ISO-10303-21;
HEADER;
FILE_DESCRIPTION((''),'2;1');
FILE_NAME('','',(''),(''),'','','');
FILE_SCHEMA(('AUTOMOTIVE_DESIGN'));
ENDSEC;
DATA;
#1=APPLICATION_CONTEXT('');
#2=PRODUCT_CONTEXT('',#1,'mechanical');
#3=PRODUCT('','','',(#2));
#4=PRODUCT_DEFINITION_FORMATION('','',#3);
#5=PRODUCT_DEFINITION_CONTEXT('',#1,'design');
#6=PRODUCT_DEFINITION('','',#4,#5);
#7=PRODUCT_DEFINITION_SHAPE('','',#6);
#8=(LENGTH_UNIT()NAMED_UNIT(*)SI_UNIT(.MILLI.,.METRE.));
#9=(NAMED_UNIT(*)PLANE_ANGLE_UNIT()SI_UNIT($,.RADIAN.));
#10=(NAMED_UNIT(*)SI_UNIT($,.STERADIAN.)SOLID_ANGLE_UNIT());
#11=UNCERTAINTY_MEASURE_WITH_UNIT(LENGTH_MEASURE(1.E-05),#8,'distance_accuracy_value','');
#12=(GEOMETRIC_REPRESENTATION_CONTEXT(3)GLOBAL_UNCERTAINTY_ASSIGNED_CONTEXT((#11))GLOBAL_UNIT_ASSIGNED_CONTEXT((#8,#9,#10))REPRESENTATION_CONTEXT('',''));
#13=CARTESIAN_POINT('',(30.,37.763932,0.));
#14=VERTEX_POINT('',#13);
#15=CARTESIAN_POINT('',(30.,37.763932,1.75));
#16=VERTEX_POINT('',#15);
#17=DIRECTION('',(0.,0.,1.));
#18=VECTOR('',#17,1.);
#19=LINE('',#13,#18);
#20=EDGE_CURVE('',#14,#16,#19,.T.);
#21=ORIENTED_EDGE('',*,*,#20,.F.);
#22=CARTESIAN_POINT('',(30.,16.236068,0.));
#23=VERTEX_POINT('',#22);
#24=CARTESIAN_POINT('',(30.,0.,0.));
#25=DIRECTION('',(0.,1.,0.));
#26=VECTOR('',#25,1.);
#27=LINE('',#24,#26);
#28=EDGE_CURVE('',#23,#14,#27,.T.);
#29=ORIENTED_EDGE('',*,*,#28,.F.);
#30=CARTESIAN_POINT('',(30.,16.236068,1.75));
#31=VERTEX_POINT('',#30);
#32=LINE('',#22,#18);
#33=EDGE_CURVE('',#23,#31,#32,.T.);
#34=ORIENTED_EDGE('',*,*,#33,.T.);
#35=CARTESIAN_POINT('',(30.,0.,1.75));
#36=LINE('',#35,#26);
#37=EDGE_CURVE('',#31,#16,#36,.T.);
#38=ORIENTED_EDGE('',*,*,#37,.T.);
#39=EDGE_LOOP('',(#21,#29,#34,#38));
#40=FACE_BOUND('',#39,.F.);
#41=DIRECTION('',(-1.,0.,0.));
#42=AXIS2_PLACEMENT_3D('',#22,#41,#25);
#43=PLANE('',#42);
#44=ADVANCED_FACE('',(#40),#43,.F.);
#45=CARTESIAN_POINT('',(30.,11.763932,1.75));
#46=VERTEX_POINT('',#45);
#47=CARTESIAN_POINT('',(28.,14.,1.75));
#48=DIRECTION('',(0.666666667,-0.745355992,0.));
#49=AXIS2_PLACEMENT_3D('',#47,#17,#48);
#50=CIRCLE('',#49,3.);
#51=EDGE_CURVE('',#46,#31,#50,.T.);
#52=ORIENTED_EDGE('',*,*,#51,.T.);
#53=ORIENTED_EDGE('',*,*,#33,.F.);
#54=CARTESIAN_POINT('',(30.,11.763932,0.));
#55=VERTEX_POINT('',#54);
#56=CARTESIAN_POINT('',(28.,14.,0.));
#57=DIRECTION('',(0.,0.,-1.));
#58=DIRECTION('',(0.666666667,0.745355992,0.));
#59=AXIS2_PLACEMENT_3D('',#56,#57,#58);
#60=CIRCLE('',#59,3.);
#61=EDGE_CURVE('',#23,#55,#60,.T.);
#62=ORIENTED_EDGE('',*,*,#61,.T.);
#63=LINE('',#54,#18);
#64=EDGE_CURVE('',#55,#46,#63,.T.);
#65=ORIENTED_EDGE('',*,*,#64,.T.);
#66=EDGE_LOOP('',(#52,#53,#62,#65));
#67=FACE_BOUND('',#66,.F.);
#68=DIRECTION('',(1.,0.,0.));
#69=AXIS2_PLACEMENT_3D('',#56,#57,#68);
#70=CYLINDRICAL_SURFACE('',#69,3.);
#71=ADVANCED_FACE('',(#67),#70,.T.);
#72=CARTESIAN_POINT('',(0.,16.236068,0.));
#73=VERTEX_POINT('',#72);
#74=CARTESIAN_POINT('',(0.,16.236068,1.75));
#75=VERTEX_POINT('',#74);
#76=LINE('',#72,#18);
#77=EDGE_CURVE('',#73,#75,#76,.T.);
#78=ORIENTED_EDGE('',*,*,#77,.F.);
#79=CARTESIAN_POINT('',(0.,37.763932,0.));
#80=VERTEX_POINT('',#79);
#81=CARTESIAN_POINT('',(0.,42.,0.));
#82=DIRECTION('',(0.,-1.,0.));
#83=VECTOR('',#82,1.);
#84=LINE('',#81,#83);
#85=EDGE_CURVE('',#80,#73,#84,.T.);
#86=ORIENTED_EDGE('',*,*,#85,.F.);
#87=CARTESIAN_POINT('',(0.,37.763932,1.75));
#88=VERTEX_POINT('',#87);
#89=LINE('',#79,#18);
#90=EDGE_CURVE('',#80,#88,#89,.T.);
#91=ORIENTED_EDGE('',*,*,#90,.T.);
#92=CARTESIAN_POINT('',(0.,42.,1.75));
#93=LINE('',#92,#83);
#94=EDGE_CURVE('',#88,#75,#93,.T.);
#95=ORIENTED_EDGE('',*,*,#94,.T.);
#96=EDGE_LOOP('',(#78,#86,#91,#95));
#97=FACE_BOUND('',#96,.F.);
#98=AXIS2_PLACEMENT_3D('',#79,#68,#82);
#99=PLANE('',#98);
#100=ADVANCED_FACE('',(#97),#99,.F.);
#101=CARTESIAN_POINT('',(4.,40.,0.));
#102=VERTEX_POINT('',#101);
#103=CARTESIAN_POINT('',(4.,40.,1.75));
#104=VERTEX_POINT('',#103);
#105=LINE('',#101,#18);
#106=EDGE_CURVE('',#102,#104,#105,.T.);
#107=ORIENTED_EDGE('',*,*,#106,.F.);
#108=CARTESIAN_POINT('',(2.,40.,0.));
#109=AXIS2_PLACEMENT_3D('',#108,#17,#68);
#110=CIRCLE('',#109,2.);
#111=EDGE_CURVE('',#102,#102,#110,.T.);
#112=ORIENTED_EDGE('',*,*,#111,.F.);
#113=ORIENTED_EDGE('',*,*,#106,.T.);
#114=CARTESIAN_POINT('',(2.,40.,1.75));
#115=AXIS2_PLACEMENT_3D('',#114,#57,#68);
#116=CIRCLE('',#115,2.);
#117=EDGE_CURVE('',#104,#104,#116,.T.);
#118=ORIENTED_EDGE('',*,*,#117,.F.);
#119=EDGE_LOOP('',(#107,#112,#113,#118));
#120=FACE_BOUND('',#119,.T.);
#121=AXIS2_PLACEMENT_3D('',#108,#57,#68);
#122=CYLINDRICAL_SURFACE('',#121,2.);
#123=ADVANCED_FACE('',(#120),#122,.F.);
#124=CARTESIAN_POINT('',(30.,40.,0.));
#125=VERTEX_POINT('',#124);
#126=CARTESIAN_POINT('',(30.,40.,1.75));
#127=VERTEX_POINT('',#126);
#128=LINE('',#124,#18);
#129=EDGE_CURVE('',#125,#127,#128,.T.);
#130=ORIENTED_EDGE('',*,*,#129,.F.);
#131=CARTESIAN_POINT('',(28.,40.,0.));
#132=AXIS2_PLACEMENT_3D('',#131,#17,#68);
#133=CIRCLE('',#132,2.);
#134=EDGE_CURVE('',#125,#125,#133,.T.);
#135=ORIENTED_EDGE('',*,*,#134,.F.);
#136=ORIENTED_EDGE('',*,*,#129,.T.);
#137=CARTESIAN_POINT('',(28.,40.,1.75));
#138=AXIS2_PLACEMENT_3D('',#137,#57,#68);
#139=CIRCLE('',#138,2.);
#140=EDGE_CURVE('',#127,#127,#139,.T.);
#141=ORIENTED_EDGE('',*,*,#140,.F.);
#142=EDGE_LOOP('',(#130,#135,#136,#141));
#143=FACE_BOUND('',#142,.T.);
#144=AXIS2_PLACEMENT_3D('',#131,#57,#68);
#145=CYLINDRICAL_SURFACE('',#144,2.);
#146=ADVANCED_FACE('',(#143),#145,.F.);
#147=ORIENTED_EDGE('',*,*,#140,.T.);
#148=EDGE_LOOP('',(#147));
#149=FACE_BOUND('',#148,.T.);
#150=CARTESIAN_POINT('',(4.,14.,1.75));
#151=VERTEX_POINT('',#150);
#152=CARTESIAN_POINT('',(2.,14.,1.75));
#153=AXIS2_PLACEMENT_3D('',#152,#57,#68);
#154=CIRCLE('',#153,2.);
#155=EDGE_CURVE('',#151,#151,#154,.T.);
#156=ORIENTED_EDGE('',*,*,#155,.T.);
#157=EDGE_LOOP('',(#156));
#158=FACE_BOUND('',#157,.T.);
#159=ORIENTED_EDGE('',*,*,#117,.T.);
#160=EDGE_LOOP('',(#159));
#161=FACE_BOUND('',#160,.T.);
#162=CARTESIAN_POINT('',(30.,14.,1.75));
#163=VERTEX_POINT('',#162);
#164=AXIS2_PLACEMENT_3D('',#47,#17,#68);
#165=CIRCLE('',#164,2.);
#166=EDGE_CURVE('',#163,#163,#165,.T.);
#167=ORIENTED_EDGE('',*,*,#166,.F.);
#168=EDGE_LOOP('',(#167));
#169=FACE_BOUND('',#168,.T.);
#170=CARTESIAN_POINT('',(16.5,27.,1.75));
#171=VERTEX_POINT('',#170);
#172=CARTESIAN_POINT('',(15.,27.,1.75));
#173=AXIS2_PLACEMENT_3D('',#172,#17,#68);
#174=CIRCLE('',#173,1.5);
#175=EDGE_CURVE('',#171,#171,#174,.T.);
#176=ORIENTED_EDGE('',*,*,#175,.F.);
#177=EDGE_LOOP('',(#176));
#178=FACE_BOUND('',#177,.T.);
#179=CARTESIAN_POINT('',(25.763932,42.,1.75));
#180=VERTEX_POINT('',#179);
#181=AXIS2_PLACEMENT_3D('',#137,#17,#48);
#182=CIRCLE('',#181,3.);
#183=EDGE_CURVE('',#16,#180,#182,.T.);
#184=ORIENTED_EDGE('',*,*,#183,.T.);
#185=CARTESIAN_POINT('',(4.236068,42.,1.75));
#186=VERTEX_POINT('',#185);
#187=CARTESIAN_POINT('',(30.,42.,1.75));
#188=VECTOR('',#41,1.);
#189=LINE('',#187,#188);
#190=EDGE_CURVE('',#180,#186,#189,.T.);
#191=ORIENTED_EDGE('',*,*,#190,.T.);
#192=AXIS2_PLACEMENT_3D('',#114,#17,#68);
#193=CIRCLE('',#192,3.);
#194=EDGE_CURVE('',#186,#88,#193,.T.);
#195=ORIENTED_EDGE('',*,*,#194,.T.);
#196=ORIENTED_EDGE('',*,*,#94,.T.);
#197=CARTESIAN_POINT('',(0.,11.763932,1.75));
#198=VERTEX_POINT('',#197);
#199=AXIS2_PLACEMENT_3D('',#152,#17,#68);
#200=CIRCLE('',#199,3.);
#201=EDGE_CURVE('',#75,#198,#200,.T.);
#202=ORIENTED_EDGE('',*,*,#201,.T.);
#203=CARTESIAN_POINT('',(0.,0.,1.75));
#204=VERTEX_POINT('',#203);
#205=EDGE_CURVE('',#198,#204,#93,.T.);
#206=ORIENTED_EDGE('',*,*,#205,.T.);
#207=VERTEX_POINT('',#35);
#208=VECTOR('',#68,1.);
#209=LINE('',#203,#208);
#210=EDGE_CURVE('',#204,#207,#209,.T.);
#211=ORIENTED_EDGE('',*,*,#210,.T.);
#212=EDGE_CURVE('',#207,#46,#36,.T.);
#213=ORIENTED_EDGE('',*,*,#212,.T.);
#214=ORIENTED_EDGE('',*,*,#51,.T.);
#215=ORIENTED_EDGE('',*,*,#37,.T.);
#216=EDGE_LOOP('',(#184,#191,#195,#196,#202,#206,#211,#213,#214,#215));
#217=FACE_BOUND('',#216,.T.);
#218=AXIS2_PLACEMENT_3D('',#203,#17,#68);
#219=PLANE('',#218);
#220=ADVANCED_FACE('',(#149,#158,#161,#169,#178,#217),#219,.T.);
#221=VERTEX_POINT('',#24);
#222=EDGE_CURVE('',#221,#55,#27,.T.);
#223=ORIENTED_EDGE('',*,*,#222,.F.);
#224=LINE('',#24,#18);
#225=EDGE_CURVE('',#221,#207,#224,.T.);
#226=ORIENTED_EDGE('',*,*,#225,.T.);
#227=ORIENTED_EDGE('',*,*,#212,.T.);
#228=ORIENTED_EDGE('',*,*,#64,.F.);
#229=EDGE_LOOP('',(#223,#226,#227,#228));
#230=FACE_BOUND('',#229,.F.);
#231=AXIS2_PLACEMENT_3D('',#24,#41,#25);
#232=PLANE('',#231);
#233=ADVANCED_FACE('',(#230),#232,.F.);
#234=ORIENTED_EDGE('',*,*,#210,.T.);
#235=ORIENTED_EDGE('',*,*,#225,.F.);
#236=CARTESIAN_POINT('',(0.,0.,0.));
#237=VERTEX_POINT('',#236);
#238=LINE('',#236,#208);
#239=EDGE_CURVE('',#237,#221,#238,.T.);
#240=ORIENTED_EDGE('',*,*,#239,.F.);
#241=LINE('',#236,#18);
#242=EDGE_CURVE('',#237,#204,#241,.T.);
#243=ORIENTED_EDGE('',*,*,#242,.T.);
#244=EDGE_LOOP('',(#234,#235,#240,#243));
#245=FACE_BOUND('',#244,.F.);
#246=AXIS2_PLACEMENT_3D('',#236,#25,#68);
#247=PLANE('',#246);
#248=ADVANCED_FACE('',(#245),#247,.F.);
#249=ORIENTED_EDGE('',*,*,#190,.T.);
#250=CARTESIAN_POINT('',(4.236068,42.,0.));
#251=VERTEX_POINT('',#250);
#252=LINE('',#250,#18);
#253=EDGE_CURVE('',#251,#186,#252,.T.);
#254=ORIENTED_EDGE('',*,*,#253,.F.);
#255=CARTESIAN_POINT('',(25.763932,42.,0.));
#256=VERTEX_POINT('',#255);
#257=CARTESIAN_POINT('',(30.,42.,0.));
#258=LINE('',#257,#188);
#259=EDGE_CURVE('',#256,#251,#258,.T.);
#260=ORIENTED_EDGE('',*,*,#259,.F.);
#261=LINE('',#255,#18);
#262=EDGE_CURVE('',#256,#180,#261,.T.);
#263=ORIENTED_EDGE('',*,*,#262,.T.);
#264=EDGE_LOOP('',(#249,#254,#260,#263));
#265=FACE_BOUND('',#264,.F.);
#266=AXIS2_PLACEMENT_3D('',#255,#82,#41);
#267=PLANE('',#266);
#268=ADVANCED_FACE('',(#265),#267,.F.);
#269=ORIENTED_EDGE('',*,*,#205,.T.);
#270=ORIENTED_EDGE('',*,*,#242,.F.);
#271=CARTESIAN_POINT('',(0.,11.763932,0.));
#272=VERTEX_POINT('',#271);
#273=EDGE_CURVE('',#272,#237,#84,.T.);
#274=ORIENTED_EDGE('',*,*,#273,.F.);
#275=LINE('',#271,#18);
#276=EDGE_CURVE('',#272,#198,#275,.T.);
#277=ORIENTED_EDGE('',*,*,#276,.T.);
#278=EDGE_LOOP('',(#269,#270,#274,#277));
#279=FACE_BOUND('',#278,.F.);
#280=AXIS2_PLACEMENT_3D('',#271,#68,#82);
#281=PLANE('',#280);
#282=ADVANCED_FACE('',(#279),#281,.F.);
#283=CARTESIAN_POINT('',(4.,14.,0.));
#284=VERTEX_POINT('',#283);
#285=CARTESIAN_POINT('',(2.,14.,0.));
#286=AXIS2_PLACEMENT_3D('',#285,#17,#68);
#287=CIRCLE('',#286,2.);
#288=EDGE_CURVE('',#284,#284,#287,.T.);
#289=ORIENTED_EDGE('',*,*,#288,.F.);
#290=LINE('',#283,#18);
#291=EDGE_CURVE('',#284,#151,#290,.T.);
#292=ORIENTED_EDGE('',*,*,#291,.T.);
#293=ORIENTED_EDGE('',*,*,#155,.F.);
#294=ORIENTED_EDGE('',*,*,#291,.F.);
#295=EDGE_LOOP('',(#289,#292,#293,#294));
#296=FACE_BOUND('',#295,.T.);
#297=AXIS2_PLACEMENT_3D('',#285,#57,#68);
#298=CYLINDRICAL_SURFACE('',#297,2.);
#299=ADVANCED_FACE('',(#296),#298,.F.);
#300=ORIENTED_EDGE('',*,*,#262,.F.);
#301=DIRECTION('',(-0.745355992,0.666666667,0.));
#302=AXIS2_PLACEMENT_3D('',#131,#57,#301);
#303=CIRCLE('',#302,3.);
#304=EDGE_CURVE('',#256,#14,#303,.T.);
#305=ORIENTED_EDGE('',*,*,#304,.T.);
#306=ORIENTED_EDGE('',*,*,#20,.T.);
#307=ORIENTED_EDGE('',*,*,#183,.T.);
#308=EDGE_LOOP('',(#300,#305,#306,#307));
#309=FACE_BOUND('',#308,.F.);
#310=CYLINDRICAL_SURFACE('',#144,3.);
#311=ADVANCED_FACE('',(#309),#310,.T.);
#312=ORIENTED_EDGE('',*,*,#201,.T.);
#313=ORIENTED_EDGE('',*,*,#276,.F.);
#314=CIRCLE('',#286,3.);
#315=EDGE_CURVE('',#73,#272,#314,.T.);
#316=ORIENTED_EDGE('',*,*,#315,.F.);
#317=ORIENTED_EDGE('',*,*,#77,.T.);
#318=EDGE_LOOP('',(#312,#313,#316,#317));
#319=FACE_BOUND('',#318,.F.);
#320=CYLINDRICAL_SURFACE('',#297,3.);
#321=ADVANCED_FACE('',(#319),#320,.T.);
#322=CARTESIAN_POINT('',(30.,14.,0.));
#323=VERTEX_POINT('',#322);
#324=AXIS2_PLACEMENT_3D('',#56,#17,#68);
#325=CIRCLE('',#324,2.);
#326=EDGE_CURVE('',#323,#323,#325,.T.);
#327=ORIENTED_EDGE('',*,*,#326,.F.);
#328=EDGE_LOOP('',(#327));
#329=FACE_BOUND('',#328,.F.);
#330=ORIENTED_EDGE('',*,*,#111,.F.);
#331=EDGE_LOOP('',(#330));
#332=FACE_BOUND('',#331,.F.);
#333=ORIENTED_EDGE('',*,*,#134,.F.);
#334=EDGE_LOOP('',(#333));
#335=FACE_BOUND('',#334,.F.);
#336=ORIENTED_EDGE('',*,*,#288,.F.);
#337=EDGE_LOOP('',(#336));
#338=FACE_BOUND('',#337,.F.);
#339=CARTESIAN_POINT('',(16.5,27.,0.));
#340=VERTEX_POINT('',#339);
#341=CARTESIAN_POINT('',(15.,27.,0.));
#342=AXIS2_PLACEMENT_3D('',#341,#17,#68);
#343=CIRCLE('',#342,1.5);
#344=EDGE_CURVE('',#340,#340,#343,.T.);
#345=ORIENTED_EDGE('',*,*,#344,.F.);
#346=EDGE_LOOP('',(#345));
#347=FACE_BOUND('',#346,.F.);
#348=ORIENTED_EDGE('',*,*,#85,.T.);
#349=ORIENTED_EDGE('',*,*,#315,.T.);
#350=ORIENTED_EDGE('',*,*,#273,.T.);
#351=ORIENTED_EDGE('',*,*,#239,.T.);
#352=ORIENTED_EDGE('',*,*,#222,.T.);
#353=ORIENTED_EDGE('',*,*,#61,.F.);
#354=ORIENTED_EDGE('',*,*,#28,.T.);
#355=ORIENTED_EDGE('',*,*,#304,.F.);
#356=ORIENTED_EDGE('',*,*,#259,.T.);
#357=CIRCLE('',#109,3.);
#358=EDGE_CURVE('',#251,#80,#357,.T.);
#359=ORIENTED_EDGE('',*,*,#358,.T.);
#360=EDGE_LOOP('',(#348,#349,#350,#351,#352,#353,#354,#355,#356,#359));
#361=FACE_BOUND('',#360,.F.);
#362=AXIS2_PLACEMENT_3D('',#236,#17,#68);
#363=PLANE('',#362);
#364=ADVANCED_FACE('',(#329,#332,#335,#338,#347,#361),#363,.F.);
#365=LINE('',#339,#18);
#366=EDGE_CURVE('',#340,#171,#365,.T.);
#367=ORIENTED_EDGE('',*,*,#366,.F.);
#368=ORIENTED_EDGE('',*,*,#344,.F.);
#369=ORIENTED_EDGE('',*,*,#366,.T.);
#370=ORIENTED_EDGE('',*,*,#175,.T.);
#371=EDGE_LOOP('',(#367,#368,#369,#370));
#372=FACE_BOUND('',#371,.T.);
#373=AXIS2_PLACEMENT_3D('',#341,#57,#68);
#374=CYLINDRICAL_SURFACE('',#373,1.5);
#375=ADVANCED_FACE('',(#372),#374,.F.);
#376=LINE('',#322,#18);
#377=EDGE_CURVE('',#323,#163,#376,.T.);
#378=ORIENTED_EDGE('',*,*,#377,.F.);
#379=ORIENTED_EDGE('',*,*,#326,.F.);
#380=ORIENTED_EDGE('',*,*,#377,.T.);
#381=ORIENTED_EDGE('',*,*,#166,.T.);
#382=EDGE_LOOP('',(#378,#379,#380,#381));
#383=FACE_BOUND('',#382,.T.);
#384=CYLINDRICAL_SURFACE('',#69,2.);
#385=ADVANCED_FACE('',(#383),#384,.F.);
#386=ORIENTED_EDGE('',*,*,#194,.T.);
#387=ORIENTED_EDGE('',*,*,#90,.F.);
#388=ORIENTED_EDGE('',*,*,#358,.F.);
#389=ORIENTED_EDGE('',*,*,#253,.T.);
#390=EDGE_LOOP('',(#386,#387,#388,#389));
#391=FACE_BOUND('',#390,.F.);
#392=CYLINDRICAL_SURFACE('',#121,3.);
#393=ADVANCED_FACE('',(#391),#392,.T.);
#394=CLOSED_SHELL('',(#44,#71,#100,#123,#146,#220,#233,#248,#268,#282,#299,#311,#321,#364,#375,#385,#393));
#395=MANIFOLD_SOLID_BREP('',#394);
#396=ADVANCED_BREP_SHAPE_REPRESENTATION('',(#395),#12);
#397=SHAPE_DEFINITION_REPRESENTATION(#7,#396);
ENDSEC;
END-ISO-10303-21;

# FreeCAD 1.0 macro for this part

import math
import FreeCAD as App
import Part
import Sketcher

V = App.Vector
Q = App.Units.Quantity

doc = App.newDocument("Part")
params = doc.addObject("Spreadsheet::Sheet", "Params")
for row, (alias, value) in enumerate([
    ("sketch1_diameter", "3 mm"),
    ("sketch1_diameter2", "4 mm"),
    ("sketch1_radius", "3 mm"),
    ("sketch1_width", "30 mm"),
    ("pad1_length", "1.75 mm"),
], start=1):
    params.set(f"A{row}", alias)
    params.set(f"B{row}", "=" + value)
    params.setAlias(f"B{row}", alias)

body = doc.addObject("PartDesign::Body", "Body")

sketch1 = body.newObject("Sketcher::SketchObject", "Sketch")
sketch1.AttachmentSupport = (doc.getObject("XY_Plane"), [""])
sketch1.MapMode = "FlatFace"
sketch1.addGeometry([
    Part.LineSegment(V(0, 11.8, 0), V(0, 0, 0)),
    Part.LineSegment(V(0, 0, 0), V(30, 0, 0)),
    Part.LineSegment(V(30, 0, 0), V(30, 11.8, 0)),
    Part.ArcOfCircle(Part.Circle(V(28, 14, 0), V(0, 0, 1), 3), math.radians(-48), math.radians(48)),
    Part.LineSegment(V(30, 16.2, 0), V(30, 37.8, 0)),
    Part.ArcOfCircle(Part.Circle(V(28, 40, 0), V(0, 0, 1), 3), math.radians(-48), math.radians(138)),
    Part.LineSegment(V(25.8, 42, 0), V(4.2, 42, 0)),
    Part.ArcOfCircle(Part.Circle(V(2, 40, 0), V(0, 0, 1), 3), math.radians(42), math.radians(228)),
    Part.LineSegment(V(0, 37.8, 0), V(0, 16.2, 0)),
    Part.ArcOfCircle(Part.Circle(V(2, 14, 0), V(0, 0, 1), 3), math.radians(132), math.radians(228)),
    Part.Circle(V(15, 27, 0), V(0, 0, 1), 1.5),
    Part.Circle(V(2, 14, 0), V(0, 0, 1), 2),
    Part.Circle(V(2, 40, 0), V(0, 0, 1), 2),
    Part.Circle(V(28, 40, 0), V(0, 0, 1), 2),
    Part.Circle(V(28, 14, 0), V(0, 0, 1), 2),
], False)
sketch1.addConstraint([
    Sketcher.Constraint("Coincident", 0, 2, 1, 1),
    Sketcher.Constraint("Coincident", 1, 2, 2, 1),
    Sketcher.Constraint("Coincident", 2, 2, 3, 1),
    Sketcher.Constraint("Coincident", 3, 2, 4, 1),
    Sketcher.Constraint("Coincident", 4, 2, 5, 1),
    Sketcher.Constraint("Coincident", 5, 2, 6, 1),
    Sketcher.Constraint("Coincident", 6, 2, 7, 1),
    Sketcher.Constraint("Coincident", 7, 2, 8, 1),
    Sketcher.Constraint("Coincident", 8, 2, 9, 1),
    Sketcher.Constraint("Coincident", 9, 2, 0, 1),
    Sketcher.Constraint("Vertical", 0),
    Sketcher.Constraint("Horizontal", 1),
    Sketcher.Constraint("Vertical", 2),
    Sketcher.Constraint("Vertical", 4),
    Sketcher.Constraint("Horizontal", 6),
    Sketcher.Constraint("Vertical", 8),
    Sketcher.Constraint("Coincident", 0, 2, -1, 1),
    Sketcher.Constraint("Coincident", 11, 3, 9, 3),
    Sketcher.Constraint("Coincident", 12, 3, 7, 3),
    Sketcher.Constraint("Coincident", 13, 3, 5, 3),
    Sketcher.Constraint("Coincident", 14, 3, 3, 3),
    Sketcher.Constraint("Equal", 3, 5),
    Sketcher.Constraint("Equal", 5, 7),
    Sketcher.Constraint("Equal", 7, 9),
    Sketcher.Constraint("Equal", 11, 12),
    Sketcher.Constraint("Equal", 12, 13),
    Sketcher.Constraint("Equal", 13, 14),
    Sketcher.Constraint("PointOnObject", 7, 2, -2),
    Sketcher.Constraint("Horizontal", 5, 3, 7, 3),
    Sketcher.Constraint("Horizontal", 3, 3, 9, 3),
    Sketcher.Constraint("Horizontal", 4, 2, 7, 2),
    Sketcher.Constraint("Horizontal", 3, 2, 8, 2),
    Sketcher.Constraint("Horizontal", 2, 2, 9, 2),
    Sketcher.Constraint("Vertical", 3, 3, 5, 3),
    Sketcher.Constraint("Equal", 6, 4),
    Sketcher.Constraint("Diameter", 10, Q("3 mm")),
    Sketcher.Constraint("Diameter", 11, Q("4 mm")),
    Sketcher.Constraint("Radius", 3, Q("3 mm")),
    Sketcher.Constraint("DistanceX", 1, 1, 1, 2, Q("30 mm")),
    Sketcher.Constraint("DistanceX", -1, 1, 10, 3, Q("15 mm")),
    Sketcher.Constraint("DistanceY", -1, 1, 5, 2, Q("42 mm")),
    Sketcher.Constraint("DistanceY", 3, 3, 5, 3, Q("26 mm")),
    Sketcher.Constraint("DistanceX", 7, 3, 5, 3, Q("26 mm")),
    Sketcher.Constraint("DistanceY", 10, 3, 5, 2, Q("15 mm")),
])
sketch1.setExpression("Constraints[35]", "Params.sketch1_diameter")
sketch1.setExpression("Constraints[36]", "Params.sketch1_diameter2")
sketch1.setExpression("Constraints[37]", "Params.sketch1_radius")
sketch1.setExpression("Constraints[38]", "Params.sketch1_width")
pad1 = body.newObject("PartDesign::Pad", "Pad")
pad1.Profile = sketch1
pad1.setExpression("Length", "Params.pad1_length")

doc.recompute()
